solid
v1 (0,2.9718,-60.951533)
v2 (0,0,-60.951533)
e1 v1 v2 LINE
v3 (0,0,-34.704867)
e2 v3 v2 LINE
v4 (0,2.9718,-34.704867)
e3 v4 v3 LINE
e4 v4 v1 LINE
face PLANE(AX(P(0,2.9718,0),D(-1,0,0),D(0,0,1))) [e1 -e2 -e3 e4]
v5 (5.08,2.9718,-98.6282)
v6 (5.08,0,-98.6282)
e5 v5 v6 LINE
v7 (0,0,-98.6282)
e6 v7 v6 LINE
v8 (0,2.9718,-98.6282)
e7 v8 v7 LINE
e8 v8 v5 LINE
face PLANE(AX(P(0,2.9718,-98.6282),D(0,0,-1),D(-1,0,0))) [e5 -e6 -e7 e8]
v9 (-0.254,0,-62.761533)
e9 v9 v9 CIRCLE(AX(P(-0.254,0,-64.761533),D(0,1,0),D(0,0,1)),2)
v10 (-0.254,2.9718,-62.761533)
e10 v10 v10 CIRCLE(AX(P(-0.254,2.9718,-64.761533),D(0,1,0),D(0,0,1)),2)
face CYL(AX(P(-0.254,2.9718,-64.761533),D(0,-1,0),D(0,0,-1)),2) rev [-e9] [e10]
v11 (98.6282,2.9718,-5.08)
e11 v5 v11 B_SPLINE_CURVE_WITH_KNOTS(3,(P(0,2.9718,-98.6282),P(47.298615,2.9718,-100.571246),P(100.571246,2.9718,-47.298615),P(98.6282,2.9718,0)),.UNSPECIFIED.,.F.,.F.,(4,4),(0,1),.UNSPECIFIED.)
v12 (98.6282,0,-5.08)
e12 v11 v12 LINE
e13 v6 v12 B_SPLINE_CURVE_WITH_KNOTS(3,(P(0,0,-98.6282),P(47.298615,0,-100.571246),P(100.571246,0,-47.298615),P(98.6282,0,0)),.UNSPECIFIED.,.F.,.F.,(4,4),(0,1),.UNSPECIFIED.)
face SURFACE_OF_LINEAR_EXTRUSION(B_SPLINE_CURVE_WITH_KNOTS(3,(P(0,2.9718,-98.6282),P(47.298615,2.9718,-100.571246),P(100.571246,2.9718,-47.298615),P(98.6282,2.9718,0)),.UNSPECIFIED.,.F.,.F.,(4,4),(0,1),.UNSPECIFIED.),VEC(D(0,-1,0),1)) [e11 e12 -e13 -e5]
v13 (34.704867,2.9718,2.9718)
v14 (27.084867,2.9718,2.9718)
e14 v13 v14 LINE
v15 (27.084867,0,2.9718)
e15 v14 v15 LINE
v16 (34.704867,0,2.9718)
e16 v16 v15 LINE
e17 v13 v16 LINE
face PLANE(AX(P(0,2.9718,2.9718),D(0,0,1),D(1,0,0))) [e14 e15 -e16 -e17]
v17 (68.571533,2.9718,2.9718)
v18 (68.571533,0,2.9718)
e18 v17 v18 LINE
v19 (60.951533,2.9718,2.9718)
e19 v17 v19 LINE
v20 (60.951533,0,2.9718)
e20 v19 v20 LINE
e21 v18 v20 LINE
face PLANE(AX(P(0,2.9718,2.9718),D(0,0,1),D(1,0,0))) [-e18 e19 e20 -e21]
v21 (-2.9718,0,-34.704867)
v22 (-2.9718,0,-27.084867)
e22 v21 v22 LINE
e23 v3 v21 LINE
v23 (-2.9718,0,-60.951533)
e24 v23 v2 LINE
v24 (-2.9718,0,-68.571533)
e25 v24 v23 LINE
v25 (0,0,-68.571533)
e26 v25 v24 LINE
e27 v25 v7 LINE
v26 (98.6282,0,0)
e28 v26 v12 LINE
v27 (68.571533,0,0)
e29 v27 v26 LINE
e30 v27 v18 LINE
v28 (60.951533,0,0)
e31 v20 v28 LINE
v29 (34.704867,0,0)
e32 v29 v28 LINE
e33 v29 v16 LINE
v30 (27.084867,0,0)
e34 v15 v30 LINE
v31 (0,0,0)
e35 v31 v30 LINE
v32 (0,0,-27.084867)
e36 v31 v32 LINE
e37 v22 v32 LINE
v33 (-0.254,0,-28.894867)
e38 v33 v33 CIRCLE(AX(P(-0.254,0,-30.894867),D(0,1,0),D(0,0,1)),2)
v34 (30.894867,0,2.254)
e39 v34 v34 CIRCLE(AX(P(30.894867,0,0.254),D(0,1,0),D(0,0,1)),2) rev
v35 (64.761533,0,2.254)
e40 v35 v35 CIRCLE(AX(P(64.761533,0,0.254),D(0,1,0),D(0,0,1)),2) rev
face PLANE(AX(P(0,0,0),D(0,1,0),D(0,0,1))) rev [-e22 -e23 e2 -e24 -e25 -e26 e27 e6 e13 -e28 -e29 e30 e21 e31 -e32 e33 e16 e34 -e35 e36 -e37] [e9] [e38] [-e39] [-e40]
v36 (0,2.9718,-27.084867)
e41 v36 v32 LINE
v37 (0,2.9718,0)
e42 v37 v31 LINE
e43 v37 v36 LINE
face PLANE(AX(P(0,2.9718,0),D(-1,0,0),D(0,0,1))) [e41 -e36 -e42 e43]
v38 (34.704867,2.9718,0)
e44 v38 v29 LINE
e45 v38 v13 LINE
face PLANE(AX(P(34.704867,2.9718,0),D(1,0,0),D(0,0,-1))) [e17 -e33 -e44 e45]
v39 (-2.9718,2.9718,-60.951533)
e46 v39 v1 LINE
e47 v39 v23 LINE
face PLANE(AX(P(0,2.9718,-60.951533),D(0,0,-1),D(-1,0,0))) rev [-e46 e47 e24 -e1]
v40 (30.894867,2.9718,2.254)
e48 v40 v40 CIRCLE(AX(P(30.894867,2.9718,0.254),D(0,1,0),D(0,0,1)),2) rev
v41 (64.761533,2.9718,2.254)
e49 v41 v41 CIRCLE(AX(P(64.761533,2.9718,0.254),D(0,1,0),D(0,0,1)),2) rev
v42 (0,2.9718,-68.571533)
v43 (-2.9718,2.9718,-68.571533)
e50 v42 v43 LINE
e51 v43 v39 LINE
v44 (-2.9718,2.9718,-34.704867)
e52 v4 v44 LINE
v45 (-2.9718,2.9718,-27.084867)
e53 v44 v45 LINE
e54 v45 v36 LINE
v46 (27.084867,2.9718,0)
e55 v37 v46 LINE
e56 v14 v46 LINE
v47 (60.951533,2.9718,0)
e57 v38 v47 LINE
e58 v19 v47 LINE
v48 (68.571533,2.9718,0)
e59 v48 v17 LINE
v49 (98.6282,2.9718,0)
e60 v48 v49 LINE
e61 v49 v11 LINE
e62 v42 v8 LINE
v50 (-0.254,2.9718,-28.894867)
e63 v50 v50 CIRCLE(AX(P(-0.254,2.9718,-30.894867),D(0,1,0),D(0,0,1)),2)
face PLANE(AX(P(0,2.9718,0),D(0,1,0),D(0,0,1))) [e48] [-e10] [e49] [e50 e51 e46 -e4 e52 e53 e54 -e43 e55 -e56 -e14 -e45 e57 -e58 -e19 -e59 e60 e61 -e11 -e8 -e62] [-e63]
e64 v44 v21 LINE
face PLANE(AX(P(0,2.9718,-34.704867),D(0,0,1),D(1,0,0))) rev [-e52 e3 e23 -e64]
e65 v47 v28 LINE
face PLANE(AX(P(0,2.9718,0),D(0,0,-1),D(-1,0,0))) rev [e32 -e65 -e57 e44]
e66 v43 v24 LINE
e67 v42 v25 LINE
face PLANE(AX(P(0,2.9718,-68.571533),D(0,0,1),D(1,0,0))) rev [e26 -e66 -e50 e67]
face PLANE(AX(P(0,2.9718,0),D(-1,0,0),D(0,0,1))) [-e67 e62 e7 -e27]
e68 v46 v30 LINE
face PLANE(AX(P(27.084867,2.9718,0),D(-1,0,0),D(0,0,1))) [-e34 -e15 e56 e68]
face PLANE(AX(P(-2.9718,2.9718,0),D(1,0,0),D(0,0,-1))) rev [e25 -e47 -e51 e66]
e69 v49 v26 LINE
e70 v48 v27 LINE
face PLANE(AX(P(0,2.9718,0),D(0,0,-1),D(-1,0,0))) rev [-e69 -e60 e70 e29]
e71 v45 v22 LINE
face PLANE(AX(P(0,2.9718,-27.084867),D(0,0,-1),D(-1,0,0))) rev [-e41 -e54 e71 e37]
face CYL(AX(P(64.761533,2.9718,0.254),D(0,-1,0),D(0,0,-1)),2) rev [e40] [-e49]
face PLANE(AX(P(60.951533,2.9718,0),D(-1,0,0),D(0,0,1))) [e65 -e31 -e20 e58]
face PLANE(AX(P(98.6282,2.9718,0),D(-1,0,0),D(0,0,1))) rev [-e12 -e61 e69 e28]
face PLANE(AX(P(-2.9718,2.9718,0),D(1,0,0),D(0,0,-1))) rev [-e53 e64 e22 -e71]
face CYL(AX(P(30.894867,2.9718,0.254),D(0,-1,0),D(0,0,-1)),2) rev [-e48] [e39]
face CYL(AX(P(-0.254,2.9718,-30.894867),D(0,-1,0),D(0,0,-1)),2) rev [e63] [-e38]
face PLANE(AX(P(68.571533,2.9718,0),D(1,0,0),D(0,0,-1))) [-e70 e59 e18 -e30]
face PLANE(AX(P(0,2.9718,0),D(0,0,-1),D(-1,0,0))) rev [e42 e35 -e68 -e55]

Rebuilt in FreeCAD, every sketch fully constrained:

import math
import FreeCAD as App
import Part
import Sketcher
from FreeCAD import Vector
Q = App.Units.Quantity

doc = App.newDocument("Part")
body = doc.addObject("PartDesign::Body", "Body")

# Sketch on XZ plane
sketch1 = body.newObject("Sketcher::SketchObject", "Sketch")
sketch1.AttachmentSupport = (doc.getObject("XZ_Plane"), [""])
sketch1.MapMode = "FlatFace"
sketch1.addGeometry([
    Part.LineSegment(Vector(0, -27.084867, 0), Vector(0, 0, 0)),  # 0
    Part.LineSegment(Vector(0, 0, 0), Vector(27.084867, 0, 0)),  # 1
    Part.LineSegment(Vector(27.084867, 0, 0), Vector(27.084867, 2.9718, 0)),  # 2
    Part.LineSegment(Vector(27.084867, 2.9718, 0), Vector(34.704867, 2.9718, 0)),  # 3
    Part.LineSegment(Vector(34.704867, 2.9718, 0), Vector(34.704867, 0, 0)),  # 4
    Part.LineSegment(Vector(34.704867, 0, 0), Vector(60.951533, 0, 0)),  # 5
    Part.LineSegment(Vector(60.951533, 0, 0), Vector(60.951533, 2.9718, 0)),  # 6
    Part.LineSegment(Vector(60.951533, 2.9718, 0), Vector(68.571533, 2.9718, 0)),  # 7
    Part.LineSegment(Vector(68.571533, 2.9718, 0), Vector(68.571533, 0, 0)),  # 8
    Part.LineSegment(Vector(68.571533, 0, 0), Vector(98.6282, 0, 0)),  # 9
    Part.LineSegment(Vector(98.6282, 0, 0), Vector(98.6282, -5.08, 0)),  # 10
    Part.BSplineCurve([Vector(5.08, -98.6282, 0), Vector(49.32871, -96.847818, 0), Vector(96.847818, -49.32871, 0), Vector(98.6282, -5.08, 0)], [4, 4], [0.03565985, 0.96434015], False, 3, [1, 1, 1, 1], False),  # 11
    Part.LineSegment(Vector(5.08, -98.6282, 0), Vector(0, -98.6282, 0)),  # 12
    Part.LineSegment(Vector(0, -98.6282, 0), Vector(0, -68.571533, 0)),  # 13
    Part.LineSegment(Vector(0, -68.571533, 0), Vector(-2.9718, -68.571533, 0)),  # 14
    Part.LineSegment(Vector(-2.9718, -68.571533, 0), Vector(-2.9718, -60.951533, 0)),  # 15
    Part.LineSegment(Vector(-2.9718, -60.951533, 0), Vector(0, -60.951533, 0)),  # 16
    Part.LineSegment(Vector(0, -60.951533, 0), Vector(0, -34.704867, 0)),  # 17
    Part.LineSegment(Vector(0, -34.704867, 0), Vector(-2.9718, -34.704867, 0)),  # 18
    Part.LineSegment(Vector(-2.9718, -34.704867, 0), Vector(-2.9718, -27.084867, 0)),  # 19
    Part.LineSegment(Vector(-2.9718, -27.084867, 0), Vector(0, -27.084867, 0)),  # 20
    Part.ArcOfCircle(Part.Circle(Vector(-0.254, -30.894867, 0), Vector(0, 0, 1), 2), math.radians(-82.703732), math.radians(0)),  # 21
    Part.ArcOfCircle(Part.Circle(Vector(-0.254, -30.894867, 0), Vector(0, 0, 1), 2), math.radians(0), math.radians(82.703732)),  # 22
    Part.ArcOfCircle(Part.Circle(Vector(-0.254, -30.894867, 0), Vector(0, 0, 1), 2), math.radians(82.703732), math.radians(277.296268)),  # 23
    Part.ArcOfCircle(Part.Circle(Vector(64.761533, 0.254, 0), Vector(0, 0, 1), 2), math.radians(-172.703732), math.radians(-7.296268)),  # 24
    Part.ArcOfCircle(Part.Circle(Vector(64.761534, 0.254, 0), Vector(0, 0, 1), 2), math.radians(-7.296269), math.radians(0.000001)),  # 25
    Part.ArcOfCircle(Part.Circle(Vector(64.761533, 0.254, 0), Vector(0, 0, 1), 2), math.radians(0), math.radians(187.296268)),  # 26
    Part.ArcOfCircle(Part.Circle(Vector(30.894867, 0.254, 0), Vector(0, 0, 1), 2), math.radians(-172.703732), math.radians(-7.296268)),  # 27
    Part.ArcOfCircle(Part.Circle(Vector(30.894867, 0.254, 0), Vector(0, 0, 1), 2), math.radians(-7.296268), math.radians(0)),  # 28
    Part.ArcOfCircle(Part.Circle(Vector(30.894867, 0.254, 0), Vector(0, 0, 1), 2), math.radians(0), math.radians(187.296268)),  # 29
    Part.ArcOfCircle(Part.Circle(Vector(-0.254, -64.761533, 0), Vector(0, 0, 1), 2), math.radians(-82.703732), math.radians(0)),  # 30
    Part.ArcOfCircle(Part.Circle(Vector(-0.254, -64.761533, 0), Vector(0, 0, 1), 2), math.radians(0), math.radians(82.703732)),  # 31
    Part.ArcOfCircle(Part.Circle(Vector(-0.254, -64.761533, 0), Vector(0, 0, 1), 2), math.radians(82.703732), math.radians(277.296268)),  # 32
], False)
sketch1.addConstraint([
    Sketcher.Constraint("Block", 11),
    Sketcher.Constraint("Coincident", 0, 2, 1, 1),
    Sketcher.Constraint("Coincident", 1, 2, 2, 1),
    Sketcher.Constraint("Coincident", 2, 2, 3, 1),
    Sketcher.Constraint("Coincident", 3, 2, 4, 1),
    Sketcher.Constraint("Coincident", 4, 2, 5, 1),
    Sketcher.Constraint("Coincident", 5, 2, 6, 1),
    Sketcher.Constraint("Coincident", 6, 2, 7, 1),
    Sketcher.Constraint("Coincident", 7, 2, 8, 1),
    Sketcher.Constraint("Coincident", 8, 2, 9, 1),
    Sketcher.Constraint("Coincident", 9, 2, 10, 1),
    Sketcher.Constraint("Coincident", 10, 2, 11, 2),
    Sketcher.Constraint("Coincident", 11, 1, 12, 1),
    Sketcher.Constraint("Coincident", 12, 2, 13, 1),
    Sketcher.Constraint("Coincident", 13, 2, 14, 1),
    Sketcher.Constraint("Coincident", 14, 2, 15, 1),
    Sketcher.Constraint("Coincident", 15, 2, 16, 1),
    Sketcher.Constraint("Coincident", 16, 2, 17, 1),
    Sketcher.Constraint("Coincident", 17, 2, 18, 1),
    Sketcher.Constraint("Coincident", 18, 2, 19, 1),
    Sketcher.Constraint("Coincident", 19, 2, 20, 1),
    Sketcher.Constraint("Coincident", 20, 2, 0, 1),
    Sketcher.Constraint("Coincident", 21, 2, 22, 1),
    Sketcher.Constraint("Coincident", 22, 2, 23, 1),
    Sketcher.Constraint("Coincident", 23, 2, 21, 1),
    Sketcher.Constraint("Coincident", 24, 2, 25, 1),
    Sketcher.Constraint("Coincident", 25, 2, 26, 1),
    Sketcher.Constraint("Coincident", 26, 2, 24, 1),
    Sketcher.Constraint("Coincident", 27, 2, 28, 1),
    Sketcher.Constraint("Coincident", 28, 2, 29, 1),
    Sketcher.Constraint("Coincident", 29, 2, 27, 1),
    Sketcher.Constraint("Coincident", 30, 2, 31, 1),
    Sketcher.Constraint("Coincident", 31, 2, 32, 1),
    Sketcher.Constraint("Coincident", 32, 2, 30, 1),
    Sketcher.Constraint("Vertical", 0),
    Sketcher.Constraint("Horizontal", 1),
    Sketcher.Constraint("Vertical", 2),
    Sketcher.Constraint("Horizontal", 3),
    Sketcher.Constraint("Vertical", 4),
    Sketcher.Constraint("Horizontal", 5),
    Sketcher.Constraint("Vertical", 6),
    Sketcher.Constraint("Horizontal", 7),
    Sketcher.Constraint("Vertical", 8),
    Sketcher.Constraint("Horizontal", 9),
    Sketcher.Constraint("Vertical", 10),
    Sketcher.Constraint("Horizontal", 12),
    Sketcher.Constraint("Vertical", 13),
    Sketcher.Constraint("Horizontal", 14),
    Sketcher.Constraint("Vertical", 15),
    Sketcher.Constraint("Horizontal", 16),
    Sketcher.Constraint("Vertical", 17),
    Sketcher.Constraint("Horizontal", 18),
    Sketcher.Constraint("Vertical", 19),
    Sketcher.Constraint("Horizontal", 20),
    Sketcher.Constraint("Coincident", 0, 2, -1, 1),
    Sketcher.Constraint("Coincident", 22, 3, 21, 3),
    Sketcher.Constraint("Coincident", 25, 3, 24, 3),
    Sketcher.Constraint("Coincident", 28, 3, 27, 3),
    Sketcher.Constraint("Coincident", 31, 3, 30, 3),
    Sketcher.Constraint("PointOnObject", 4, 2, -1),
    Sketcher.Constraint("PointOnObject", 8, 2, -1),
    Sketcher.Constraint("PointOnObject", 12, 2, -2),
    Sketcher.Constraint("PointOnObject", 16, 2, -2),
    Sketcher.Constraint("PointOnObject", 22, 2, -2),
    Sketcher.Constraint("PointOnObject", 23, 2, -2),
    Sketcher.Constraint("PointOnObject", 24, 2, -1),
    Sketcher.Constraint("PointOnObject", 26, 2, -1),
    Sketcher.Constraint("PointOnObject", 27, 2, -1),
    Sketcher.Constraint("PointOnObject", 29, 2, -1),
    Sketcher.Constraint("PointOnObject", 31, 2, -2),
    Sketcher.Constraint("PointOnObject", 32, 2, -2),
    Sketcher.Constraint("DistanceX", 3, 1, 3, 2, Q("0.3 in")),
    Sketcher.Constraint("DistanceX", 7, 1, 7, 2, Q("0.3 in")),
    Sketcher.Constraint("DistanceY", 15, 1, 15, 2, Q("0.3 in")),
    Sketcher.Constraint("DistanceY", 19, 1, 19, 2, Q("0.3 in")),
    Sketcher.Constraint("DistanceX", 14, 2, 14, 1, Q("0.117 in")),
    Sketcher.Constraint("DistanceX", 18, 2, 18, 1, Q("0.117 in")),
    Sketcher.Constraint("DistanceY", 2, 1, 2, 2, Q("0.117 in")),
    Sketcher.Constraint("DistanceY", 6, 1, 6, 2, Q("0.117 in")),
    Sketcher.Constraint("DistanceX", 21, 3, -1, 1, Q("0.01 in")),
    Sketcher.Constraint("DistanceX", 23, 3, -1, 1, Q("0.01 in")),
    Sketcher.Constraint("DistanceY", -1, 1, 24, 3, Q("0.01 in")),
    Sketcher.Constraint("DistanceY", -1, 1, 26, 3, Q("0.01 in")),
    Sketcher.Constraint("DistanceY", -1, 1, 27, 3, Q("0.01 in")),
    Sketcher.Constraint("DistanceY", -1, 1, 29, 3, Q("0.01 in")),
    Sketcher.Constraint("DistanceX", 30, 3, -1, 1, Q("0.01 in")),
    Sketcher.Constraint("DistanceX", 32, 3, -1, 1, Q("0.01 in")),
    Sketcher.Constraint("DistanceY", -1, 1, 25, 2, Q("0.01 in")),
    Sketcher.Constraint("DistanceY", -1, 1, 28, 2, Q("0.01 in")),
    Sketcher.Constraint("Radius", 21, Q("2 mm")),
    Sketcher.Constraint("Radius", 24, Q("2 mm")),
    Sketcher.Constraint("Radius", 27, Q("2 mm")),
    Sketcher.Constraint("Radius", 30, Q("2 mm")),
    Sketcher.Constraint("DistanceX", 1, 2, 28, 3, Q("0.15 in")),
    Sketcher.Constraint("DistanceX", 5, 2, 24, 3, Q("0.15 in")),
    Sketcher.Constraint("DistanceY", 13, 2, 31, 3, Q("0.15 in")),
    Sketcher.Constraint("DistanceY", 17, 2, 22, 3, Q("0.15 in")),
    Sketcher.Constraint("DistanceY", 17, 2, 21, 2, Q("0.15 in")),
    Sketcher.Constraint("DistanceY", 13, 2, 30, 2, Q("0.15 in")),
    Sketcher.Constraint("DistanceX", 1, 1, 1, 2, Q("27.084867 mm")),
    Sketcher.Constraint("DistanceX", 5, 1, 5, 2, Q("26.246667 mm")),
    Sketcher.Constraint("DistanceY", 0, 1, 0, 2, Q("27.084867 mm")),
    Sketcher.Constraint("DistanceY", 13, 1, 13, 2, Q("30.056667 mm")),
])
pad1 = body.newObject("PartDesign::Pad", "Pad")
pad1.Profile = sketch1
pad1.Length = Q("0.117 in")
pad1.Reversed = True

doc.recompute()
